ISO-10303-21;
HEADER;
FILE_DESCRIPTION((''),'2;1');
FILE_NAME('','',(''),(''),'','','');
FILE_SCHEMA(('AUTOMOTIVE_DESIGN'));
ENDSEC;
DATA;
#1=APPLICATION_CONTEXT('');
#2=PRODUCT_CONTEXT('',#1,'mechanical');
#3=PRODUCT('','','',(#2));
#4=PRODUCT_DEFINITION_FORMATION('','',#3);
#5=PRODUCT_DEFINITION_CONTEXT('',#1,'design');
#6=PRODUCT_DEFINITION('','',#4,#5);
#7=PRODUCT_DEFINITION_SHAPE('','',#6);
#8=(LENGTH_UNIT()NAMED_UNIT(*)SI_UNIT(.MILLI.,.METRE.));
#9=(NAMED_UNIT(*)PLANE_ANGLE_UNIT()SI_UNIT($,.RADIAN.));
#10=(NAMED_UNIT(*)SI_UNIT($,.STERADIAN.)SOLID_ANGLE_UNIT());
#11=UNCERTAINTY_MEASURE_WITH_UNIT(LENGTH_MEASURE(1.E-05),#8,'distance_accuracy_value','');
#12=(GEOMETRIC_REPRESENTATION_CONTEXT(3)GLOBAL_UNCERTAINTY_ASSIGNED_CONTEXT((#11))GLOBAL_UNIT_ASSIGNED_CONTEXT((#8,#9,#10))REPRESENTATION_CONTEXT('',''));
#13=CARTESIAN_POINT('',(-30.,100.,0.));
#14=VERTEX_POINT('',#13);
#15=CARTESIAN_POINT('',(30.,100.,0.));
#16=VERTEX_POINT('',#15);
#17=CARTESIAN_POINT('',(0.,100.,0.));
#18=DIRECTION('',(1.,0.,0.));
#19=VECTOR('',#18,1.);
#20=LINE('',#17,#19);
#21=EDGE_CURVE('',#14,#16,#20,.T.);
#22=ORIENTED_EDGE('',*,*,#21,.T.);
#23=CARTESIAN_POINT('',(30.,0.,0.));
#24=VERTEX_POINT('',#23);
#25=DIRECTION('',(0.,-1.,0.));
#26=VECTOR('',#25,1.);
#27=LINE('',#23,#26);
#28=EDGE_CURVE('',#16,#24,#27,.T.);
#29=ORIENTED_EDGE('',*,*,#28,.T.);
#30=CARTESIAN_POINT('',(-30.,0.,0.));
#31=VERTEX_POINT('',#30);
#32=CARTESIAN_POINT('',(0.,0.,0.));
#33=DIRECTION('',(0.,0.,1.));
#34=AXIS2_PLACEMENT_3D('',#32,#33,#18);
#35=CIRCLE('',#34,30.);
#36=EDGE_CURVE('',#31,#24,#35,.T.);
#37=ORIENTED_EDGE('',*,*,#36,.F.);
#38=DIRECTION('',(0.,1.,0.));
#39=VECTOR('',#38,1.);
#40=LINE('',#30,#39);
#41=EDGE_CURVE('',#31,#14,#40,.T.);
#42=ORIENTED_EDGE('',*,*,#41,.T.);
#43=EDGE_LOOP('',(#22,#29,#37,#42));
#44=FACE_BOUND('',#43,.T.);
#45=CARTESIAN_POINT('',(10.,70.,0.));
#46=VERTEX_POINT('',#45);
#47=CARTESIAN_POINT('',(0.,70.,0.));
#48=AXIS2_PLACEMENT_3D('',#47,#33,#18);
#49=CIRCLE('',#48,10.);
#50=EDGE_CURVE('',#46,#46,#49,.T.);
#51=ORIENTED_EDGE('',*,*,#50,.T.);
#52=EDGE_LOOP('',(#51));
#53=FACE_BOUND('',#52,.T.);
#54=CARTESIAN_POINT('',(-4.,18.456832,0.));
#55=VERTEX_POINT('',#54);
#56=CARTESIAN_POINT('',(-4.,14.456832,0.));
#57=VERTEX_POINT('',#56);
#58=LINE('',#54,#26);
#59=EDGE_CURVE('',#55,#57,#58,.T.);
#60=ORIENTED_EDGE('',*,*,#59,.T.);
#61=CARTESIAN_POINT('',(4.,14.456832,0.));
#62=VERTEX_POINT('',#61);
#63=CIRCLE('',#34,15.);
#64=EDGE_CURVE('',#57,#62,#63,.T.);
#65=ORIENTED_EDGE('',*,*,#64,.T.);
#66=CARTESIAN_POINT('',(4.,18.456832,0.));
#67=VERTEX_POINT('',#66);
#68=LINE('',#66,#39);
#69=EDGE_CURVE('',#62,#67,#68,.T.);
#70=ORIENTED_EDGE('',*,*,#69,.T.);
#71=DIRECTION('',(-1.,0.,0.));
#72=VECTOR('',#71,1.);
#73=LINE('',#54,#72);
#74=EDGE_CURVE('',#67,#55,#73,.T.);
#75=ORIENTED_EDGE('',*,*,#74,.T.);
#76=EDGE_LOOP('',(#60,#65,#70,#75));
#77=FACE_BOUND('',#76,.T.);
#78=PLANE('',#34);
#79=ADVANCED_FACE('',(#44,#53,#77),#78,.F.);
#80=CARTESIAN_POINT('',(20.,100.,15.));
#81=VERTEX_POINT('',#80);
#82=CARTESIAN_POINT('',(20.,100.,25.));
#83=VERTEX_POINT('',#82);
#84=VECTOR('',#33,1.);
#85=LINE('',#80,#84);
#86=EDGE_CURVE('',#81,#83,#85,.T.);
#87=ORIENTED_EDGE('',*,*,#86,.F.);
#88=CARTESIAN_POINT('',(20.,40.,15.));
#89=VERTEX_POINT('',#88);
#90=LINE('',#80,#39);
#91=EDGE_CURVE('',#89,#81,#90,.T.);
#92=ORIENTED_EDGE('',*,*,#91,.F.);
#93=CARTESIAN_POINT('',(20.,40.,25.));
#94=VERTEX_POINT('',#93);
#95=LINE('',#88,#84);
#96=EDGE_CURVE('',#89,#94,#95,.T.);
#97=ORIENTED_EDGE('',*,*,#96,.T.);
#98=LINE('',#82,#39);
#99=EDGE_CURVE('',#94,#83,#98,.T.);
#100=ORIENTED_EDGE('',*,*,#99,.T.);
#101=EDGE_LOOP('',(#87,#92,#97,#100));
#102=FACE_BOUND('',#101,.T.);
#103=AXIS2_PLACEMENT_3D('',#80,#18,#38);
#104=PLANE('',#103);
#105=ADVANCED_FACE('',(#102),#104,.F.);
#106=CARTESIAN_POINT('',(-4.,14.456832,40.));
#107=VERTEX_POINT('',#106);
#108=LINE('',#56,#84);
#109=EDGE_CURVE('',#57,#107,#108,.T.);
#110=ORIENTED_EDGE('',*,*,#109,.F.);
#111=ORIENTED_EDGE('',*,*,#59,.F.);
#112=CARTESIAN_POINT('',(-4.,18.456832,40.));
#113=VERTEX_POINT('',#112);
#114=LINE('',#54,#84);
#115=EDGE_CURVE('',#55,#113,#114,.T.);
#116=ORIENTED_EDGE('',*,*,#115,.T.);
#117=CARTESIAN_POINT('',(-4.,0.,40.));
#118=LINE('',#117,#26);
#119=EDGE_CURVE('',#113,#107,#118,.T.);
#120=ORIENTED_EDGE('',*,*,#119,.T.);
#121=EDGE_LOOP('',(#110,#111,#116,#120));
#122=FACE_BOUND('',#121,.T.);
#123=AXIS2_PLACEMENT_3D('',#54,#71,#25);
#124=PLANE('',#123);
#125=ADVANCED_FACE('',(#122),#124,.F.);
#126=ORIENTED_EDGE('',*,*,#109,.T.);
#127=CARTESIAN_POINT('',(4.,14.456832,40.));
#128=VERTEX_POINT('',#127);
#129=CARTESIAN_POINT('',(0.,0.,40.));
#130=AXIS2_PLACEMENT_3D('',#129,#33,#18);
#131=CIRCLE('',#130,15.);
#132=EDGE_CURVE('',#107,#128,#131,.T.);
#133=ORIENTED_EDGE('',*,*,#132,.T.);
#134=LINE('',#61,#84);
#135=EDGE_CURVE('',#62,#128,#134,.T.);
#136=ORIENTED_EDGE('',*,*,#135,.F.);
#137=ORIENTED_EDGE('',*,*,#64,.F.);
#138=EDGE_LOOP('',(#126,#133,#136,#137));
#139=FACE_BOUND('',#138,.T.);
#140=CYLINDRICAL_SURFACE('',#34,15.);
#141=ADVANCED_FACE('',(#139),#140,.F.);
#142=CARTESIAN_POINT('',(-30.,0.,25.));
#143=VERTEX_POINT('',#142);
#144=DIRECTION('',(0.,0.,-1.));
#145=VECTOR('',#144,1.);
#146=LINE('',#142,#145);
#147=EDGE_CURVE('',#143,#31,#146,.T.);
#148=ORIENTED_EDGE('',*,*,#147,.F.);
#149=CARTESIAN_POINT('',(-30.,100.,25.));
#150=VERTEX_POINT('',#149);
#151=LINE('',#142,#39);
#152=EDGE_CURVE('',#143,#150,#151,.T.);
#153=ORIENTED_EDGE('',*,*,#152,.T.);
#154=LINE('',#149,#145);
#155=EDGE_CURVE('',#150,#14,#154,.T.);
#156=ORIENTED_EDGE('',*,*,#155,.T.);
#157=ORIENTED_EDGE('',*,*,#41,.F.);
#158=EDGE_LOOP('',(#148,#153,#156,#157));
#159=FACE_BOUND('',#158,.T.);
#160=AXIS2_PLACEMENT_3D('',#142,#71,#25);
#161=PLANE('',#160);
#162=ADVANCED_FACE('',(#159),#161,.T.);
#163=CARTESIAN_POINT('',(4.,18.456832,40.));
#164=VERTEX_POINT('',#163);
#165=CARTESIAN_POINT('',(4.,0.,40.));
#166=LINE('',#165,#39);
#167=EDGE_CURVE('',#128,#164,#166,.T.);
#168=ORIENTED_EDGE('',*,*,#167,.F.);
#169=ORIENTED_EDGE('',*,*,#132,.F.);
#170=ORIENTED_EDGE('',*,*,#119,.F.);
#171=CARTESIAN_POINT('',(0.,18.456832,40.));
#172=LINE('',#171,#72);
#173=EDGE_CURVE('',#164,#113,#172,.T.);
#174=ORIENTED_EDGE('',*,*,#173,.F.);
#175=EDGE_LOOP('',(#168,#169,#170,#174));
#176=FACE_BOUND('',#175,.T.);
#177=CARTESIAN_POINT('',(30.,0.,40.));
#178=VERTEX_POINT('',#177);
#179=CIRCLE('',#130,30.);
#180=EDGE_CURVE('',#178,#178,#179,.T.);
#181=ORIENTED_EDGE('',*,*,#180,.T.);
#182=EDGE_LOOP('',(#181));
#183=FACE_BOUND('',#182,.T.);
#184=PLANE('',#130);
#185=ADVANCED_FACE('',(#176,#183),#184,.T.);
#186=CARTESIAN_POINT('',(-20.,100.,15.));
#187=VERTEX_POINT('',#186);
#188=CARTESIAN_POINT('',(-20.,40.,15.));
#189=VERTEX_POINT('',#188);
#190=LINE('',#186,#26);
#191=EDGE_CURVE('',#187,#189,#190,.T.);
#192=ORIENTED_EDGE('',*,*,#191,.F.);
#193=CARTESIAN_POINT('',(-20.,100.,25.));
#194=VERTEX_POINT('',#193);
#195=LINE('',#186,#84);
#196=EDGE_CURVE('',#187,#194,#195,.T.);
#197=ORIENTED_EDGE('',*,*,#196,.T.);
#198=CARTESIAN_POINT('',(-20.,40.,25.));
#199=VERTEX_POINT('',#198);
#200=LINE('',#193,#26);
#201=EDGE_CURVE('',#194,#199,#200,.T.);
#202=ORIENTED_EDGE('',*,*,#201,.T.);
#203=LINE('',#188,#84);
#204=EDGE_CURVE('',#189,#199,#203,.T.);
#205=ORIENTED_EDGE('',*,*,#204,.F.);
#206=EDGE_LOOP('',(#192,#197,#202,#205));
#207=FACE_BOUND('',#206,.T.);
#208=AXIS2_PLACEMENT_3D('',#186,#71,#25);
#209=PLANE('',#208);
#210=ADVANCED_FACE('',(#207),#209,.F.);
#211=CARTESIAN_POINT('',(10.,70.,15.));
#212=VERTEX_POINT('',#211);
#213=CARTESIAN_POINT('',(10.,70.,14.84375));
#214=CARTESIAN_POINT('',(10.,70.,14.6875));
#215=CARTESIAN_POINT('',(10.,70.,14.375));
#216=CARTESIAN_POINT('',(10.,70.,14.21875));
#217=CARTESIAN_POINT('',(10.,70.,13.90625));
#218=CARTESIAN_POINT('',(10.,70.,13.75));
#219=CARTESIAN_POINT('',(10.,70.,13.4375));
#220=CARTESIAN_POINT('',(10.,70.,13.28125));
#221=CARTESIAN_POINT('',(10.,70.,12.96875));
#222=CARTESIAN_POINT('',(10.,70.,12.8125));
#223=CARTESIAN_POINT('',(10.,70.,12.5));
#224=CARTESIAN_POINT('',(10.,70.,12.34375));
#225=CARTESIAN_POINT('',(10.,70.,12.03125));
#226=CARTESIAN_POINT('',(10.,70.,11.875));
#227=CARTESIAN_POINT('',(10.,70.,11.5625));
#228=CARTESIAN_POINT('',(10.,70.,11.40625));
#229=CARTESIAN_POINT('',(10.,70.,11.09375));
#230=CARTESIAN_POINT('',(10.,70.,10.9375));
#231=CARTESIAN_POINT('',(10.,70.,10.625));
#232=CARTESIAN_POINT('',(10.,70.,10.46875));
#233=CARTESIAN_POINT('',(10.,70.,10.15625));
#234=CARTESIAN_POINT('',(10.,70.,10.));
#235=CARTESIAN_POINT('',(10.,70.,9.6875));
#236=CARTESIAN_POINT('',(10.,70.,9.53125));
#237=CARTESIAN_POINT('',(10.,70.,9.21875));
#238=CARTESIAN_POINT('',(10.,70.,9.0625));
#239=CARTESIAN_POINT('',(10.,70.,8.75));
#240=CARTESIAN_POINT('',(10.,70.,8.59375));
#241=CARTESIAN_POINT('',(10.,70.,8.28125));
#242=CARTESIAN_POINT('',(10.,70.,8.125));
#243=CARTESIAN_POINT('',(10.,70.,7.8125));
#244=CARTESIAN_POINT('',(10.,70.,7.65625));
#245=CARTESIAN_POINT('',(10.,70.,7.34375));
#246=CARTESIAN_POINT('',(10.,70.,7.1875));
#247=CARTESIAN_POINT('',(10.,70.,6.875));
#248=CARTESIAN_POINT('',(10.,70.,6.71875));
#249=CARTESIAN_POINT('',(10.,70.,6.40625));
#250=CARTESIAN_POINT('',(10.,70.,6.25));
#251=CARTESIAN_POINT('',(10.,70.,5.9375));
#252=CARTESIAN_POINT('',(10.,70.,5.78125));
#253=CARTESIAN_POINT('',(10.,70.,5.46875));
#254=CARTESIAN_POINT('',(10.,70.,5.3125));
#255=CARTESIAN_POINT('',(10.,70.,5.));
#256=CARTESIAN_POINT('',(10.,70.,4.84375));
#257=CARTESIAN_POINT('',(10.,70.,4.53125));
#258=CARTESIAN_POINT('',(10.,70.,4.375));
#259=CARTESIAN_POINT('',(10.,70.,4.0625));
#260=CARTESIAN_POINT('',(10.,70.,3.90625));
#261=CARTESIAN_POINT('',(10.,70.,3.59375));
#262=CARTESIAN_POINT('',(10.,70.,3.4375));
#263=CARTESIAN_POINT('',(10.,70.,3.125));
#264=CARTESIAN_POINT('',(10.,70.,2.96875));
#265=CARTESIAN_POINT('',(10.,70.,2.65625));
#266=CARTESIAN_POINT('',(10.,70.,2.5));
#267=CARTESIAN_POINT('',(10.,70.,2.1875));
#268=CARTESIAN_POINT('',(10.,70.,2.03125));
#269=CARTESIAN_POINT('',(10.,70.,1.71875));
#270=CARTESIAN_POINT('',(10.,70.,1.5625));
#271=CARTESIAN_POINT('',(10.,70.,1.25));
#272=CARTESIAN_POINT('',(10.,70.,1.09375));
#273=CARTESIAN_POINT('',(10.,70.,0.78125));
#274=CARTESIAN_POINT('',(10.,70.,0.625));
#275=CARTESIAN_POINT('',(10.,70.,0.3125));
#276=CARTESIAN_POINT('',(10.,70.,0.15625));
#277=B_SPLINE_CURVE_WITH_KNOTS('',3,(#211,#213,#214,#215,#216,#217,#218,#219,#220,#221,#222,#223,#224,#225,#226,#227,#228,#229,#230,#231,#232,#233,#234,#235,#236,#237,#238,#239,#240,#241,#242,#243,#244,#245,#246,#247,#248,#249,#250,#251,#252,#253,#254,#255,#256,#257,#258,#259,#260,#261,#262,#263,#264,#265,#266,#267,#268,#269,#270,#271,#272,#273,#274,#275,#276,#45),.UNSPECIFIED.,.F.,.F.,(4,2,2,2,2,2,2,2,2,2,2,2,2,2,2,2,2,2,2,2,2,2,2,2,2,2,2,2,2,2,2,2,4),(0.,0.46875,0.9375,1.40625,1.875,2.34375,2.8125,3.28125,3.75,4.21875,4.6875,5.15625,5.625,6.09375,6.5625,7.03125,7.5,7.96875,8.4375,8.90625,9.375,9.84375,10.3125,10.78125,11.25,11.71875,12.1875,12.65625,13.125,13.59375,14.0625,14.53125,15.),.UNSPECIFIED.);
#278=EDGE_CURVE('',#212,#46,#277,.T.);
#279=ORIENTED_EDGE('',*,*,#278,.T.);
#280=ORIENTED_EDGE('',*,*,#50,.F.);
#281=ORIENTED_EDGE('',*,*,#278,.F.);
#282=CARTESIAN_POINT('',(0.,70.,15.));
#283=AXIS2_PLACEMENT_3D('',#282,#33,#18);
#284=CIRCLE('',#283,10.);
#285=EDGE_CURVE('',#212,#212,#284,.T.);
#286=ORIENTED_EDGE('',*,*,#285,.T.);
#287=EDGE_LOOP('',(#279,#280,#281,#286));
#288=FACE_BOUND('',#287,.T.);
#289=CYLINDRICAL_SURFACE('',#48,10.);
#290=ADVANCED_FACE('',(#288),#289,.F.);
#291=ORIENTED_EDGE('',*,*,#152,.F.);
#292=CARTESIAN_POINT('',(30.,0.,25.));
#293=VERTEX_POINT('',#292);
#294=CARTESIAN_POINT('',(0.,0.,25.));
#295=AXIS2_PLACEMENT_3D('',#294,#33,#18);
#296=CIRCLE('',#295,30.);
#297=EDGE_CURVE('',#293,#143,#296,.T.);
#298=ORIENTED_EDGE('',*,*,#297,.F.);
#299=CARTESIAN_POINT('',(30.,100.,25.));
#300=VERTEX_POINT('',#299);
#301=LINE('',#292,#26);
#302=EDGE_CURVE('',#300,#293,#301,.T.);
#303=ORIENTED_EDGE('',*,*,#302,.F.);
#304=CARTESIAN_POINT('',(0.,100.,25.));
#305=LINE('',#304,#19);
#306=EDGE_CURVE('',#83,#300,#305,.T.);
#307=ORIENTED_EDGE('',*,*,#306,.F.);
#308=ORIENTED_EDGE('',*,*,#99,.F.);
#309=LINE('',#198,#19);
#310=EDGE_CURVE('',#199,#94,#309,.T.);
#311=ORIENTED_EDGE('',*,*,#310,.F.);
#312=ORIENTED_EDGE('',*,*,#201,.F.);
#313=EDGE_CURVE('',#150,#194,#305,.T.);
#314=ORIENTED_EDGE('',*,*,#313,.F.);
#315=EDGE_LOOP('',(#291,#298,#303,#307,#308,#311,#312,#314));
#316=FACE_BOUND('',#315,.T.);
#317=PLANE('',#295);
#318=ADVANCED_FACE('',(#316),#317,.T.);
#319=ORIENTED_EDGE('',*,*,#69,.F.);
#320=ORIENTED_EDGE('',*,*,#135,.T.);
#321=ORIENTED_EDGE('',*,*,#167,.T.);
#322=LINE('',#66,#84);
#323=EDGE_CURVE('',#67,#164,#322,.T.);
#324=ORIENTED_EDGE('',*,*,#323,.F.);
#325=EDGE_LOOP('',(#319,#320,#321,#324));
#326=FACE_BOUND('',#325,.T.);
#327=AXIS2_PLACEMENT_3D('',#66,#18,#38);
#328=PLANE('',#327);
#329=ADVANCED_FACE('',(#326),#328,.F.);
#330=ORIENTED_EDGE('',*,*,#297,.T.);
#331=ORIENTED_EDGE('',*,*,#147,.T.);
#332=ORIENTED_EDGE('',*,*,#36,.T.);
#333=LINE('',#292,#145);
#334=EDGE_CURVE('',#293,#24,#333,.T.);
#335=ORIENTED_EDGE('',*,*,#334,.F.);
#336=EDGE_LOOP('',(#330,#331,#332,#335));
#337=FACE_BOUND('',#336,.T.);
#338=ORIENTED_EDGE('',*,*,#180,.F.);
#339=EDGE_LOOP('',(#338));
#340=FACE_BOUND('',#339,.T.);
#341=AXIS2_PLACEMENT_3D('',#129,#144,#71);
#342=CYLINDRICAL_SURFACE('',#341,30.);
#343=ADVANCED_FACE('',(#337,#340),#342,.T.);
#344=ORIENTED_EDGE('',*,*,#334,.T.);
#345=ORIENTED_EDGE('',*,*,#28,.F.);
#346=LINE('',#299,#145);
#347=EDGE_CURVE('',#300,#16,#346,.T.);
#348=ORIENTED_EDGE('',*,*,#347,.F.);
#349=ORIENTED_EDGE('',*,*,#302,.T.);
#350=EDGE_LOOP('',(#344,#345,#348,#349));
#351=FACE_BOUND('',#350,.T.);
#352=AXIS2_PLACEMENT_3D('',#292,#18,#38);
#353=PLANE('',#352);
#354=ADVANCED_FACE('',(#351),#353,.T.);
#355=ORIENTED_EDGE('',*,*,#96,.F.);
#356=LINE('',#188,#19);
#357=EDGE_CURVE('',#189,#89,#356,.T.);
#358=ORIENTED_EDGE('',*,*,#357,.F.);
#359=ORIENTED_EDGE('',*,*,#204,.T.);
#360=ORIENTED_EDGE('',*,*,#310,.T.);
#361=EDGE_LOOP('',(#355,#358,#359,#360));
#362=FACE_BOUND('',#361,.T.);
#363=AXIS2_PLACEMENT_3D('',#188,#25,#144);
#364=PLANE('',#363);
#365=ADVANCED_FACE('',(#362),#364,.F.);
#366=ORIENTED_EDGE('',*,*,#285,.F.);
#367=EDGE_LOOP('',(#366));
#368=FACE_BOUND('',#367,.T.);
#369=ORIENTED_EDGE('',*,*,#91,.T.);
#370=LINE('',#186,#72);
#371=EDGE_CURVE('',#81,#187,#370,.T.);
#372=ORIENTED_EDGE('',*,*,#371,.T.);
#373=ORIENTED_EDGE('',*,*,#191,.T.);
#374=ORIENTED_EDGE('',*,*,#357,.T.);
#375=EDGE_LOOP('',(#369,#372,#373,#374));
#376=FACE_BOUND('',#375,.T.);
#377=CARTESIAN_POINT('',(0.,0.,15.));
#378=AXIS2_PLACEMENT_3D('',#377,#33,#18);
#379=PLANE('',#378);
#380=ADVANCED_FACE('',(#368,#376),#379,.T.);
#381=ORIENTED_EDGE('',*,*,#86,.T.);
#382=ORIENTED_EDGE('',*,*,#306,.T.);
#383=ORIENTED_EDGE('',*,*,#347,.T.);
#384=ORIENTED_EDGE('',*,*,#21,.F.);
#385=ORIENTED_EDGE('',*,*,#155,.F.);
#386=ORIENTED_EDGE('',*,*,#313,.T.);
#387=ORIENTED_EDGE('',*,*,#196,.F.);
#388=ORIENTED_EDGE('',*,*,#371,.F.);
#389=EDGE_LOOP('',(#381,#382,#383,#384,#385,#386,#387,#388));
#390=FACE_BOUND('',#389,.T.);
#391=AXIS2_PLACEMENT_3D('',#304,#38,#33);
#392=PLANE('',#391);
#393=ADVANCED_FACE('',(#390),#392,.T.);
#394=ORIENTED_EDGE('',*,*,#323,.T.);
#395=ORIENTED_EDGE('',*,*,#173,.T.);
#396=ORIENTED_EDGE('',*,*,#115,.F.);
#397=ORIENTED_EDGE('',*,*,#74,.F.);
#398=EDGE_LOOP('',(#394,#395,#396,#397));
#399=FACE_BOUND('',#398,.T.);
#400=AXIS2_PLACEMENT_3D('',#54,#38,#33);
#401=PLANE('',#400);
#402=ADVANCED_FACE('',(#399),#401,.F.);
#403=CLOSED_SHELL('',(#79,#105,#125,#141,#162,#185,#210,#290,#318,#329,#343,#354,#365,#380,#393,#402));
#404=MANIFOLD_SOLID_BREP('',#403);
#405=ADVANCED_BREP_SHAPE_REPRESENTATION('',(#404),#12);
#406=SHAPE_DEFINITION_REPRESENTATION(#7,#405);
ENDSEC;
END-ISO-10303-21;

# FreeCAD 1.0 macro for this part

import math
import FreeCAD as App
import Part
import Sketcher

V = App.Vector

doc = App.newDocument("Part")
body = doc.addObject("PartDesign::Body", "Body")

# Sketch on XY plane
sketch1 = doc.addObject("Sketcher::SketchObject", "Sketch")
body.addObject(sketch1)
sketch1.AttachmentSupport = (doc.XY_Plane, [""])
sketch1.MapMode = "FlatFace"
sketch1.addGeometry(Part.LineSegment(V(-30, 100, 0), V(-30, 0, 0)), False)
sketch1.addGeometry(Part.ArcOfCircle(Part.Circle(V(0, 0, 0), V(0, 0, 1), 30), math.radians(90), math.radians(180)), False)
sketch1.addGeometry(Part.ArcOfCircle(Part.Circle(V(0, 0, 0), V(0, 0, 1), 30), math.radians(0), math.radians(90)), False)
sketch1.addGeometry(Part.LineSegment(V(30, 0, 0), V(30, 100, 0)), False)
sketch1.addGeometry(Part.LineSegment(V(30, 100, 0), V(-30, 100, 0)), False)
sketch1.addConstraint(Sketcher.Constraint("Tangent", 0, 2, 1, 2))
sketch1.addConstraint(Sketcher.Constraint("Tangent", 1, 1, 2, 2))
sketch1.addConstraint(Sketcher.Constraint("Tangent", 2, 1, 3, 1))
sketch1.addConstraint(Sketcher.Constraint("Coincident", 3, 2, 4, 1))
sketch1.addConstraint(Sketcher.Constraint("Coincident", 4, 2, 0, 1))
sketch1.addConstraint(Sketcher.Constraint("Vertical", 0))
sketch1.addConstraint(Sketcher.Constraint("Vertical", 3))
sketch1.addConstraint(Sketcher.Constraint("Horizontal", 4))
sketch1.addConstraint(Sketcher.Constraint("Coincident", 1, 3, -1, 1))
sketch1.addConstraint(Sketcher.Constraint("Equal", 1, 2))
sketch1.addConstraint(Sketcher.Constraint("PointOnObject", 1, 1, -2))
sketch1.addConstraint(Sketcher.Constraint("Radius", 1, 30.0))
sketch1.addConstraint(Sketcher.Constraint("DistanceY", 0, 2, 0, 1, 100.0))
pad1 = doc.addObject("PartDesign::Pad", "Pad")
body.addObject(pad1)
pad1.Profile = sketch1
pad1.Length = 25

# Sketch on XY plane
sketch2 = doc.addObject("Sketcher::SketchObject", "Sketch001")
body.addObject(sketch2)
sketch2.AttachmentSupport = (doc.XY_Plane, [""])
sketch2.MapMode = "FlatFace"
sketch2.addGeometry(Part.Circle(V(0, 0, 0), V(0, 0, 1), 30), False)
sketch2.addConstraint(Sketcher.Constraint("Coincident", 0, 3, -1, 1))
sketch2.addConstraint(Sketcher.Constraint("Diameter", 0, 60.0))
pad2 = doc.addObject("PartDesign::Pad", "Pad001")
body.addObject(pad2)
pad2.Profile = sketch2
pad2.Length = 40

# Sketch on XY plane
sketch3 = doc.addObject("Sketcher::SketchObject", "Sketch002")
body.addObject(sketch3)
sketch3.AttachmentSupport = (doc.XY_Plane, [""])
sketch3.MapMode = "FlatFace"
sketch3.AttachmentOffset = App.Placement(V(0, 0, 25), App.Rotation())
sketch3.addGeometry(Part.LineSegment(V(-20, 100, 0), V(-20, 40, 0)), False)
sketch3.addGeometry(Part.LineSegment(V(-20, 40, 0), V(20, 40, 0)), False)
sketch3.addGeometry(Part.LineSegment(V(20, 40, 0), V(20, 100, 0)), False)
sketch3.addGeometry(Part.LineSegment(V(20, 100, 0), V(-20, 100, 0)), False)
sketch3.addConstraint(Sketcher.Constraint("Coincident", 0, 2, 1, 1))
sketch3.addConstraint(Sketcher.Constraint("Coincident", 1, 2, 2, 1))
sketch3.addConstraint(Sketcher.Constraint("Coincident", 2, 2, 3, 1))
sketch3.addConstraint(Sketcher.Constraint("Coincident", 3, 2, 0, 1))
sketch3.addConstraint(Sketcher.Constraint("Vertical", 0))
sketch3.addConstraint(Sketcher.Constraint("Horizontal", 1))
sketch3.addConstraint(Sketcher.Constraint("Vertical", 2))
sketch3.addConstraint(Sketcher.Constraint("Horizontal", 3))
sketch3.addConstraint(Sketcher.Constraint("DistanceX", 1, 1, 1, 2, 40.0))
sketch3.addConstraint(Sketcher.Constraint("DistanceY", 0, 2, 0, 1, 60.0))
sketch3.addConstraint(Sketcher.Constraint("DistanceX", 0, 2, -1, 1, 20.0))
sketch3.addConstraint(Sketcher.Constraint("DistanceY", -1, 1, 0, 2, 40.0))
pocket1 = doc.addObject("PartDesign::Pocket", "Pocket")
body.addObject(pocket1)
pocket1.Profile = sketch3
pocket1.Length = 10

# Sketch on XY plane
sketch4 = doc.addObject("Sketcher::SketchObject", "Sketch003")
body.addObject(sketch4)
sketch4.AttachmentSupport = (doc.XY_Plane, [""])
sketch4.MapMode = "FlatFace"
sketch4.AttachmentOffset = App.Placement(V(0, 0, 15), App.Rotation())
sketch4.addGeometry(Part.Circle(V(0, 70, 0), V(0, 0, 1), 10), False)
sketch4.addConstraint(Sketcher.Constraint("PointOnObject", 0, 3, -2))
sketch4.addConstraint(Sketcher.Constraint("Diameter", 0, 20.0))
sketch4.addConstraint(Sketcher.Constraint("DistanceY", -1, 1, 0, 3, 70.0))
pocket2 = doc.addObject("PartDesign::Pocket", "Pocket001")
body.addObject(pocket2)
pocket2.Profile = sketch4
pocket2.Type = "ThroughAll"
pocket2.Midplane = True

# Sketch on XY plane
sketch5 = doc.addObject("Sketcher::SketchObject", "Sketch004")
body.addObject(sketch5)
sketch5.AttachmentSupport = (doc.XY_Plane, [""])
sketch5.MapMode = "FlatFace"
sketch5.AttachmentOffset = App.Placement(V(0, 0, 40), App.Rotation())
sketch5.addGeometry(Part.LineSegment(V(4, 18.5, 0), V(-4, 18.5, 0)), False)
sketch5.addGeometry(Part.LineSegment(V(-4, 18.5, 0), V(-4, 14.5, 0)), False)
sketch5.addGeometry(Part.ArcOfCircle(Part.Circle(V(0, 0, 0), V(0, 0, 1), 15), math.radians(105), math.radians(435)), False)
sketch5.addGeometry(Part.LineSegment(V(4, 14.5, 0), V(4, 18.5, 0)), False)
sketch5.addConstraint(Sketcher.Constraint("Coincident", 0, 2, 1, 1))
sketch5.addConstraint(Sketcher.Constraint("Coincident", 1, 2, 2, 1))
sketch5.addConstraint(Sketcher.Constraint("Coincident", 2, 2, 3, 1))
sketch5.addConstraint(Sketcher.Constraint("Coincident", 3, 2, 0, 1))
sketch5.addConstraint(Sketcher.Constraint("Horizontal", 0))
sketch5.addConstraint(Sketcher.Constraint("Vertical", 1))
sketch5.addConstraint(Sketcher.Constraint("Vertical", 3))
sketch5.addConstraint(Sketcher.Constraint("Coincident", 2, 3, -1, 1))
sketch5.addConstraint(Sketcher.Constraint("Horizontal", 1, 2, 2, 2))
sketch5.addConstraint(Sketcher.Constraint("Radius", 2, 15.0))
sketch5.addConstraint(Sketcher.Constraint("DistanceX", 0, 2, 0, 1, 8.0))
sketch5.addConstraint(Sketcher.Constraint("DistanceY", 1, 2, 1, 1, 4.0))
pocket3 = doc.addObject("PartDesign::Pocket", "Pocket002")
body.addObject(pocket3)
pocket3.Profile = sketch5
pocket3.Type = "ThroughAll"
pocket3.Midplane = True

doc.recompute()
